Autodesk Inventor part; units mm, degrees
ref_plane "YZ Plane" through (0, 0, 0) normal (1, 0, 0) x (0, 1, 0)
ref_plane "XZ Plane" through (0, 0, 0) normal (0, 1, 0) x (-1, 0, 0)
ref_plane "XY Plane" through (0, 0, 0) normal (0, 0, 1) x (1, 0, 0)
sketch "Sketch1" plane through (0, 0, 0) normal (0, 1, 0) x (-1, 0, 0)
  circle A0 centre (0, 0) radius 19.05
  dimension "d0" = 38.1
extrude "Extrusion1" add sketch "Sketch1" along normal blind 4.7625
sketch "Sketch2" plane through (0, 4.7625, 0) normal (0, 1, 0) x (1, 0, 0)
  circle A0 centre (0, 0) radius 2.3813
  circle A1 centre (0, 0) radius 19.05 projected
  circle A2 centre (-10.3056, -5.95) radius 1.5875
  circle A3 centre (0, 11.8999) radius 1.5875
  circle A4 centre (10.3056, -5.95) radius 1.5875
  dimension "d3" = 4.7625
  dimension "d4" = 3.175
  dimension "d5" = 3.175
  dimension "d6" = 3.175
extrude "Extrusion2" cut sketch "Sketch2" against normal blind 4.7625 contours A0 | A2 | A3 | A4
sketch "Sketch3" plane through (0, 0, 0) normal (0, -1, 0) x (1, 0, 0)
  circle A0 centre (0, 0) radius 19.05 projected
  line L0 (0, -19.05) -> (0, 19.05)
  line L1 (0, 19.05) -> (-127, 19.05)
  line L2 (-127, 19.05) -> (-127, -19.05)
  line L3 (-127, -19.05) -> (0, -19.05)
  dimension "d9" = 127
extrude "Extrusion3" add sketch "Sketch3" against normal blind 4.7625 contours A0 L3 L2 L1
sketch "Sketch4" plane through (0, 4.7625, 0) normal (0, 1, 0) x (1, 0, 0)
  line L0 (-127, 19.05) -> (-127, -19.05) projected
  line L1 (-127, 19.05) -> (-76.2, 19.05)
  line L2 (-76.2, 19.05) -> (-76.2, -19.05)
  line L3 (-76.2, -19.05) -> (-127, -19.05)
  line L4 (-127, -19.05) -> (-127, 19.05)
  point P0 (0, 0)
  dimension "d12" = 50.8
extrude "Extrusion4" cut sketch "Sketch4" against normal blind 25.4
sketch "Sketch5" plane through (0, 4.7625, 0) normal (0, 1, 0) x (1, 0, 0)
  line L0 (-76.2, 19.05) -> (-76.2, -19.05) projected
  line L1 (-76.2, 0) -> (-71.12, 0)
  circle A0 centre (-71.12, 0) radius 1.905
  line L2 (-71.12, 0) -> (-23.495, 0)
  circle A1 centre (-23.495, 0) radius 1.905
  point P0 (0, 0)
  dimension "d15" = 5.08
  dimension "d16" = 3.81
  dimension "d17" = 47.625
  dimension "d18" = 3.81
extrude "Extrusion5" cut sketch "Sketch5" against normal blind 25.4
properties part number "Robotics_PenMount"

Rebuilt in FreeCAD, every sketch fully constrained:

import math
import FreeCAD as App
import Part
import Sketcher
from FreeCAD import Vector
Q = App.Units.Quantity

doc = App.newDocument("Part")
body = doc.addObject("PartDesign::Body", "Body")

sketch1 = doc.addObject("Sketcher::SketchObject", "Sketch")
body.addObject(sketch1)
sketch1.AttachmentSupport = (doc.XZ_Plane, [""])
sketch1.MapMode = "FlatFace"
sketch1.addGeometry(Part.Circle(Vector(0, 0, 0), Vector(0, 0, 1), 19), False)
sketch1.addConstraint([
    Sketcher.Constraint("Coincident", 0, 3, -1, 1),
    Sketcher.Constraint("Diameter", 0, Q("1.5 in")),
])
pad1 = doc.addObject("PartDesign::Pad", "Pad")
body.addObject(pad1)
pad1.Profile = sketch1
pad1.Length = Q("0.1875 in")
pad1.Reversed = True

sketch2 = doc.addObject("Sketcher::SketchObject", "Sketch001")
body.addObject(sketch2)
sketch2.AttachmentSupport = (doc.XZ_Plane, [""])
sketch2.MapMode = "FlatFace"
sketch2.AttachmentOffset = App.Placement(Vector(0, 0, -0.1875 * 25.4), App.Rotation())
sketch2.addGeometry([
    Part.Circle(Vector(0, 0, 0), Vector(0, 0, 1), 2.4),
    Part.Circle(Vector(-10.3, 6, 0), Vector(0, 0, 1), 1.6),
    Part.Circle(Vector(0, -11.9, 0), Vector(0, 0, 1), 1.6),
    Part.Circle(Vector(10.3, 6, 0), Vector(0, 0, 1), 1.6),
], False)
sketch2.addConstraint([
    Sketcher.Constraint("Coincident", 0, 3, -1, 1),
    Sketcher.Constraint("Equal", 1, 2),
    Sketcher.Constraint("Equal", 2, 3),
    Sketcher.Constraint("Symmetric", 1, 3, 3, 3, -2),
    Sketcher.Constraint("PointOnObject", 2, 3, -2),
    Sketcher.Constraint("Diameter", 0, Q("0.1875 in")),
    Sketcher.Constraint("Diameter", 1, Q("0.125 in")),
    Sketcher.Constraint("DistanceY", 2, 3, -1, 1, Q("0.4685 in")),
    Sketcher.Constraint("DistanceX", 1, 3, -1, 1, Q("10.3056 mm")),
    Sketcher.Constraint("DistanceY", -1, 1, 1, 3, Q("5.95 mm")),
])
pocket1 = doc.addObject("PartDesign::Pocket", "Pocket")
body.addObject(pocket1)
pocket1.Profile = sketch2
pocket1.Length = Q("0.1875 in")
pocket1.Reversed = True

sketch3 = doc.addObject("Sketcher::SketchObject", "Sketch002")
body.addObject(sketch3)
sketch3.AttachmentSupport = (doc.XZ_Plane, [""])
sketch3.MapMode = "FlatFace"
sketch3.addGeometry([
    Part.ArcOfCircle(Part.Circle(Vector(0, 0, 0), Vector(0, 0, 1), 19), math.radians(90), math.radians(270)),
    Part.LineSegment(Vector(0, 19, 0), Vector(-127, 19, 0)),
    Part.LineSegment(Vector(-127, 19, 0), Vector(-127, -19, 0)),
    Part.LineSegment(Vector(-127, -19, 0), Vector(0, -19, 0)),
], False)
sketch3.addConstraint([
    Sketcher.Constraint("Tangent", 0, 1, 1, 1),
    Sketcher.Constraint("Coincident", 1, 2, 2, 1),
    Sketcher.Constraint("Coincident", 2, 2, 3, 1),
    Sketcher.Constraint("Tangent", 3, 2, 0, 2),
    Sketcher.Constraint("Horizontal", 1),
    Sketcher.Constraint("Vertical", 2),
    Sketcher.Constraint("Horizontal", 3),
    Sketcher.Constraint("Coincident", 0, 3, -1, 1),
    Sketcher.Constraint("DistanceX", 1, 2, 1, 1, Q("5 in")),
    Sketcher.Constraint("Radius", 0, Q("0.75 in")),
])
pad2 = doc.addObject("PartDesign::Pad", "Pad001")
body.addObject(pad2)
pad2.Profile = sketch3
pad2.Length = Q("0.1875 in")
pad2.Reversed = True

sketch4 = doc.addObject("Sketcher::SketchObject", "Sketch003")
body.addObject(sketch4)
sketch4.AttachmentSupport = (doc.XZ_Plane, [""])
sketch4.MapMode = "FlatFace"
sketch4.AttachmentOffset = App.Placement(Vector(0, 0, -0.1875 * 25.4), App.Rotation())
sketch4.addGeometry([
    Part.LineSegment(Vector(-76, -19, 0), Vector(-127, -19, 0)),
    Part.LineSegment(Vector(-127, -19, 0), Vector(-127, 19, 0)),
    Part.LineSegment(Vector(-127, 19, 0), Vector(-76, 19, 0)),
    Part.LineSegment(Vector(-76, 19, 0), Vector(-76, -19, 0)),
], False)
sketch4.addConstraint([
    Sketcher.Constraint("Coincident", 0, 2, 1, 1),
    Sketcher.Constraint("Coincident", 1, 2, 2, 1),
    Sketcher.Constraint("Coincident", 2, 2, 3, 1),
    Sketcher.Constraint("Coincident", 3, 2, 0, 1),
    Sketcher.Constraint("Horizontal", 0),
    Sketcher.Constraint("Vertical", 1),
    Sketcher.Constraint("Horizontal", 2),
    Sketcher.Constraint("Vertical", 3),
    Sketcher.Constraint("DistanceX", 0, 2, 0, 1, Q("2 in")),
    Sketcher.Constraint("DistanceY", 1, 1, 1, 2, Q("1.5 in")),
    Sketcher.Constraint("DistanceX", 0, 2, -1, 1, Q("5 in")),
    Sketcher.Constraint("DistanceY", 0, 2, -1, 1, Q("0.75 in")),
])
pocket2 = doc.addObject("PartDesign::Pocket", "Pocket001")
body.addObject(pocket2)
pocket2.Profile = sketch4
pocket2.Length = Q("1 in")
pocket2.Reversed = True

sketch5 = doc.addObject("Sketcher::SketchObject", "Sketch004")
body.addObject(sketch5)
sketch5.AttachmentSupport = (doc.XZ_Plane, [""])
sketch5.MapMode = "FlatFace"
sketch5.AttachmentOffset = App.Placement(Vector(0, 0, -0.1875 * 25.4), App.Rotation())
sketch5.addGeometry([
    Part.Circle(Vector(-71.1, 0, 0), Vector(0, 0, 1), 1.9),
    Part.Circle(Vector(-23.5, 0, 0), Vector(0, 0, 1), 1.9),
], False)
sketch5.addConstraint([
    Sketcher.Constraint("Equal", 0, 1),
    Sketcher.Constraint("PointOnObject", 0, 3, -1),
    Sketcher.Constraint("PointOnObject", 1, 3, -1),
    Sketcher.Constraint("Diameter", 0, Q("0.15 in")),
    Sketcher.Constraint("DistanceX", 0, 3, 1, 3, Q("1.875 in")),
    Sketcher.Constraint("DistanceX", 0, 3, -1, 1, Q("2.8 in")),
])
pocket3 = doc.addObject("PartDesign::Pocket", "Pocket002")
body.addObject(pocket3)
pocket3.Profile = sketch5
pocket3.Length = Q("1 in")
pocket3.Reversed = True

doc.recompute()
